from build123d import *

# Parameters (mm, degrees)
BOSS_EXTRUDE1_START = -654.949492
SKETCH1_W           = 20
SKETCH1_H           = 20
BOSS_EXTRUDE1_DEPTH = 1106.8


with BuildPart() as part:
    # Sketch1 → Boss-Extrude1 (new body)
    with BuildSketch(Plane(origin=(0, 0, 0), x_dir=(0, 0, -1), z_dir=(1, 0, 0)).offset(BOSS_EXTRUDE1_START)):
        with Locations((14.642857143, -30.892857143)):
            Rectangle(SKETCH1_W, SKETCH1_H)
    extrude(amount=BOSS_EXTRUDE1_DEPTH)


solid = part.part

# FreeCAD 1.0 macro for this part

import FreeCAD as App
import Part
import Sketcher
from FreeCAD import Vector
Q = App.Units.Quantity

doc = App.newDocument("Part")
body = doc.addObject("PartDesign::Body", "Body")

sketch1 = body.newObject("Sketcher::SketchObject", "Sketch")
sketch1.AttachmentSupport = (doc.getObject("YZ_Plane"), [""])
sketch1.MapMode = "FlatFace"
sketch1.AttachmentOffset = App.Placement(Vector(0, 0, -654.949492), App.Rotation())
sketch1.addGeometry(Part.LineSegment(Vector(-21, -5, 0), Vector(-41, -5, 0)), False)
sketch1.addGeometry(Part.LineSegment(Vector(-41, -5, 0), Vector(-41, -25, 0)), False)
sketch1.addGeometry(Part.LineSegment(Vector(-41, -25, 0), Vector(-21, -25, 0)), False)
sketch1.addGeometry(Part.LineSegment(Vector(-21, -25, 0), Vector(-21, -5, 0)), False)
sketch1.addConstraint(Sketcher.Constraint("Coincident", 0, 2, 1, 1))
sketch1.addConstraint(Sketcher.Constraint("Coincident", 1, 2, 2, 1))
sketch1.addConstraint(Sketcher.Constraint("Coincident", 2, 2, 3, 1))
sketch1.addConstraint(Sketcher.Constraint("Coincident", 3, 2, 0, 1))
sketch1.addConstraint(Sketcher.Constraint("Horizontal", 0))
sketch1.addConstraint(Sketcher.Constraint("Vertical", 1))
sketch1.addConstraint(Sketcher.Constraint("Horizontal", 2))
sketch1.addConstraint(Sketcher.Constraint("Vertical", 3))
sketch1.addConstraint(Sketcher.Constraint("Equal", 2, 1))
sketch1.addConstraint(Sketcher.Constraint("DistanceX", 0, 2, 0, 1, Q("20 mm")))
sketch1.addConstraint(Sketcher.Constraint("DistanceX", 0, 2, -1, 1, Q("40.892857 mm")))
sketch1.addConstraint(Sketcher.Constraint("DistanceY", 0, 2, -1, 1, Q("4.642857 mm")))
pad1 = body.newObject("PartDesign::Pad", "Pad")
pad1.Profile = sketch1
pad1.Length = 1106.8

doc.recompute()
